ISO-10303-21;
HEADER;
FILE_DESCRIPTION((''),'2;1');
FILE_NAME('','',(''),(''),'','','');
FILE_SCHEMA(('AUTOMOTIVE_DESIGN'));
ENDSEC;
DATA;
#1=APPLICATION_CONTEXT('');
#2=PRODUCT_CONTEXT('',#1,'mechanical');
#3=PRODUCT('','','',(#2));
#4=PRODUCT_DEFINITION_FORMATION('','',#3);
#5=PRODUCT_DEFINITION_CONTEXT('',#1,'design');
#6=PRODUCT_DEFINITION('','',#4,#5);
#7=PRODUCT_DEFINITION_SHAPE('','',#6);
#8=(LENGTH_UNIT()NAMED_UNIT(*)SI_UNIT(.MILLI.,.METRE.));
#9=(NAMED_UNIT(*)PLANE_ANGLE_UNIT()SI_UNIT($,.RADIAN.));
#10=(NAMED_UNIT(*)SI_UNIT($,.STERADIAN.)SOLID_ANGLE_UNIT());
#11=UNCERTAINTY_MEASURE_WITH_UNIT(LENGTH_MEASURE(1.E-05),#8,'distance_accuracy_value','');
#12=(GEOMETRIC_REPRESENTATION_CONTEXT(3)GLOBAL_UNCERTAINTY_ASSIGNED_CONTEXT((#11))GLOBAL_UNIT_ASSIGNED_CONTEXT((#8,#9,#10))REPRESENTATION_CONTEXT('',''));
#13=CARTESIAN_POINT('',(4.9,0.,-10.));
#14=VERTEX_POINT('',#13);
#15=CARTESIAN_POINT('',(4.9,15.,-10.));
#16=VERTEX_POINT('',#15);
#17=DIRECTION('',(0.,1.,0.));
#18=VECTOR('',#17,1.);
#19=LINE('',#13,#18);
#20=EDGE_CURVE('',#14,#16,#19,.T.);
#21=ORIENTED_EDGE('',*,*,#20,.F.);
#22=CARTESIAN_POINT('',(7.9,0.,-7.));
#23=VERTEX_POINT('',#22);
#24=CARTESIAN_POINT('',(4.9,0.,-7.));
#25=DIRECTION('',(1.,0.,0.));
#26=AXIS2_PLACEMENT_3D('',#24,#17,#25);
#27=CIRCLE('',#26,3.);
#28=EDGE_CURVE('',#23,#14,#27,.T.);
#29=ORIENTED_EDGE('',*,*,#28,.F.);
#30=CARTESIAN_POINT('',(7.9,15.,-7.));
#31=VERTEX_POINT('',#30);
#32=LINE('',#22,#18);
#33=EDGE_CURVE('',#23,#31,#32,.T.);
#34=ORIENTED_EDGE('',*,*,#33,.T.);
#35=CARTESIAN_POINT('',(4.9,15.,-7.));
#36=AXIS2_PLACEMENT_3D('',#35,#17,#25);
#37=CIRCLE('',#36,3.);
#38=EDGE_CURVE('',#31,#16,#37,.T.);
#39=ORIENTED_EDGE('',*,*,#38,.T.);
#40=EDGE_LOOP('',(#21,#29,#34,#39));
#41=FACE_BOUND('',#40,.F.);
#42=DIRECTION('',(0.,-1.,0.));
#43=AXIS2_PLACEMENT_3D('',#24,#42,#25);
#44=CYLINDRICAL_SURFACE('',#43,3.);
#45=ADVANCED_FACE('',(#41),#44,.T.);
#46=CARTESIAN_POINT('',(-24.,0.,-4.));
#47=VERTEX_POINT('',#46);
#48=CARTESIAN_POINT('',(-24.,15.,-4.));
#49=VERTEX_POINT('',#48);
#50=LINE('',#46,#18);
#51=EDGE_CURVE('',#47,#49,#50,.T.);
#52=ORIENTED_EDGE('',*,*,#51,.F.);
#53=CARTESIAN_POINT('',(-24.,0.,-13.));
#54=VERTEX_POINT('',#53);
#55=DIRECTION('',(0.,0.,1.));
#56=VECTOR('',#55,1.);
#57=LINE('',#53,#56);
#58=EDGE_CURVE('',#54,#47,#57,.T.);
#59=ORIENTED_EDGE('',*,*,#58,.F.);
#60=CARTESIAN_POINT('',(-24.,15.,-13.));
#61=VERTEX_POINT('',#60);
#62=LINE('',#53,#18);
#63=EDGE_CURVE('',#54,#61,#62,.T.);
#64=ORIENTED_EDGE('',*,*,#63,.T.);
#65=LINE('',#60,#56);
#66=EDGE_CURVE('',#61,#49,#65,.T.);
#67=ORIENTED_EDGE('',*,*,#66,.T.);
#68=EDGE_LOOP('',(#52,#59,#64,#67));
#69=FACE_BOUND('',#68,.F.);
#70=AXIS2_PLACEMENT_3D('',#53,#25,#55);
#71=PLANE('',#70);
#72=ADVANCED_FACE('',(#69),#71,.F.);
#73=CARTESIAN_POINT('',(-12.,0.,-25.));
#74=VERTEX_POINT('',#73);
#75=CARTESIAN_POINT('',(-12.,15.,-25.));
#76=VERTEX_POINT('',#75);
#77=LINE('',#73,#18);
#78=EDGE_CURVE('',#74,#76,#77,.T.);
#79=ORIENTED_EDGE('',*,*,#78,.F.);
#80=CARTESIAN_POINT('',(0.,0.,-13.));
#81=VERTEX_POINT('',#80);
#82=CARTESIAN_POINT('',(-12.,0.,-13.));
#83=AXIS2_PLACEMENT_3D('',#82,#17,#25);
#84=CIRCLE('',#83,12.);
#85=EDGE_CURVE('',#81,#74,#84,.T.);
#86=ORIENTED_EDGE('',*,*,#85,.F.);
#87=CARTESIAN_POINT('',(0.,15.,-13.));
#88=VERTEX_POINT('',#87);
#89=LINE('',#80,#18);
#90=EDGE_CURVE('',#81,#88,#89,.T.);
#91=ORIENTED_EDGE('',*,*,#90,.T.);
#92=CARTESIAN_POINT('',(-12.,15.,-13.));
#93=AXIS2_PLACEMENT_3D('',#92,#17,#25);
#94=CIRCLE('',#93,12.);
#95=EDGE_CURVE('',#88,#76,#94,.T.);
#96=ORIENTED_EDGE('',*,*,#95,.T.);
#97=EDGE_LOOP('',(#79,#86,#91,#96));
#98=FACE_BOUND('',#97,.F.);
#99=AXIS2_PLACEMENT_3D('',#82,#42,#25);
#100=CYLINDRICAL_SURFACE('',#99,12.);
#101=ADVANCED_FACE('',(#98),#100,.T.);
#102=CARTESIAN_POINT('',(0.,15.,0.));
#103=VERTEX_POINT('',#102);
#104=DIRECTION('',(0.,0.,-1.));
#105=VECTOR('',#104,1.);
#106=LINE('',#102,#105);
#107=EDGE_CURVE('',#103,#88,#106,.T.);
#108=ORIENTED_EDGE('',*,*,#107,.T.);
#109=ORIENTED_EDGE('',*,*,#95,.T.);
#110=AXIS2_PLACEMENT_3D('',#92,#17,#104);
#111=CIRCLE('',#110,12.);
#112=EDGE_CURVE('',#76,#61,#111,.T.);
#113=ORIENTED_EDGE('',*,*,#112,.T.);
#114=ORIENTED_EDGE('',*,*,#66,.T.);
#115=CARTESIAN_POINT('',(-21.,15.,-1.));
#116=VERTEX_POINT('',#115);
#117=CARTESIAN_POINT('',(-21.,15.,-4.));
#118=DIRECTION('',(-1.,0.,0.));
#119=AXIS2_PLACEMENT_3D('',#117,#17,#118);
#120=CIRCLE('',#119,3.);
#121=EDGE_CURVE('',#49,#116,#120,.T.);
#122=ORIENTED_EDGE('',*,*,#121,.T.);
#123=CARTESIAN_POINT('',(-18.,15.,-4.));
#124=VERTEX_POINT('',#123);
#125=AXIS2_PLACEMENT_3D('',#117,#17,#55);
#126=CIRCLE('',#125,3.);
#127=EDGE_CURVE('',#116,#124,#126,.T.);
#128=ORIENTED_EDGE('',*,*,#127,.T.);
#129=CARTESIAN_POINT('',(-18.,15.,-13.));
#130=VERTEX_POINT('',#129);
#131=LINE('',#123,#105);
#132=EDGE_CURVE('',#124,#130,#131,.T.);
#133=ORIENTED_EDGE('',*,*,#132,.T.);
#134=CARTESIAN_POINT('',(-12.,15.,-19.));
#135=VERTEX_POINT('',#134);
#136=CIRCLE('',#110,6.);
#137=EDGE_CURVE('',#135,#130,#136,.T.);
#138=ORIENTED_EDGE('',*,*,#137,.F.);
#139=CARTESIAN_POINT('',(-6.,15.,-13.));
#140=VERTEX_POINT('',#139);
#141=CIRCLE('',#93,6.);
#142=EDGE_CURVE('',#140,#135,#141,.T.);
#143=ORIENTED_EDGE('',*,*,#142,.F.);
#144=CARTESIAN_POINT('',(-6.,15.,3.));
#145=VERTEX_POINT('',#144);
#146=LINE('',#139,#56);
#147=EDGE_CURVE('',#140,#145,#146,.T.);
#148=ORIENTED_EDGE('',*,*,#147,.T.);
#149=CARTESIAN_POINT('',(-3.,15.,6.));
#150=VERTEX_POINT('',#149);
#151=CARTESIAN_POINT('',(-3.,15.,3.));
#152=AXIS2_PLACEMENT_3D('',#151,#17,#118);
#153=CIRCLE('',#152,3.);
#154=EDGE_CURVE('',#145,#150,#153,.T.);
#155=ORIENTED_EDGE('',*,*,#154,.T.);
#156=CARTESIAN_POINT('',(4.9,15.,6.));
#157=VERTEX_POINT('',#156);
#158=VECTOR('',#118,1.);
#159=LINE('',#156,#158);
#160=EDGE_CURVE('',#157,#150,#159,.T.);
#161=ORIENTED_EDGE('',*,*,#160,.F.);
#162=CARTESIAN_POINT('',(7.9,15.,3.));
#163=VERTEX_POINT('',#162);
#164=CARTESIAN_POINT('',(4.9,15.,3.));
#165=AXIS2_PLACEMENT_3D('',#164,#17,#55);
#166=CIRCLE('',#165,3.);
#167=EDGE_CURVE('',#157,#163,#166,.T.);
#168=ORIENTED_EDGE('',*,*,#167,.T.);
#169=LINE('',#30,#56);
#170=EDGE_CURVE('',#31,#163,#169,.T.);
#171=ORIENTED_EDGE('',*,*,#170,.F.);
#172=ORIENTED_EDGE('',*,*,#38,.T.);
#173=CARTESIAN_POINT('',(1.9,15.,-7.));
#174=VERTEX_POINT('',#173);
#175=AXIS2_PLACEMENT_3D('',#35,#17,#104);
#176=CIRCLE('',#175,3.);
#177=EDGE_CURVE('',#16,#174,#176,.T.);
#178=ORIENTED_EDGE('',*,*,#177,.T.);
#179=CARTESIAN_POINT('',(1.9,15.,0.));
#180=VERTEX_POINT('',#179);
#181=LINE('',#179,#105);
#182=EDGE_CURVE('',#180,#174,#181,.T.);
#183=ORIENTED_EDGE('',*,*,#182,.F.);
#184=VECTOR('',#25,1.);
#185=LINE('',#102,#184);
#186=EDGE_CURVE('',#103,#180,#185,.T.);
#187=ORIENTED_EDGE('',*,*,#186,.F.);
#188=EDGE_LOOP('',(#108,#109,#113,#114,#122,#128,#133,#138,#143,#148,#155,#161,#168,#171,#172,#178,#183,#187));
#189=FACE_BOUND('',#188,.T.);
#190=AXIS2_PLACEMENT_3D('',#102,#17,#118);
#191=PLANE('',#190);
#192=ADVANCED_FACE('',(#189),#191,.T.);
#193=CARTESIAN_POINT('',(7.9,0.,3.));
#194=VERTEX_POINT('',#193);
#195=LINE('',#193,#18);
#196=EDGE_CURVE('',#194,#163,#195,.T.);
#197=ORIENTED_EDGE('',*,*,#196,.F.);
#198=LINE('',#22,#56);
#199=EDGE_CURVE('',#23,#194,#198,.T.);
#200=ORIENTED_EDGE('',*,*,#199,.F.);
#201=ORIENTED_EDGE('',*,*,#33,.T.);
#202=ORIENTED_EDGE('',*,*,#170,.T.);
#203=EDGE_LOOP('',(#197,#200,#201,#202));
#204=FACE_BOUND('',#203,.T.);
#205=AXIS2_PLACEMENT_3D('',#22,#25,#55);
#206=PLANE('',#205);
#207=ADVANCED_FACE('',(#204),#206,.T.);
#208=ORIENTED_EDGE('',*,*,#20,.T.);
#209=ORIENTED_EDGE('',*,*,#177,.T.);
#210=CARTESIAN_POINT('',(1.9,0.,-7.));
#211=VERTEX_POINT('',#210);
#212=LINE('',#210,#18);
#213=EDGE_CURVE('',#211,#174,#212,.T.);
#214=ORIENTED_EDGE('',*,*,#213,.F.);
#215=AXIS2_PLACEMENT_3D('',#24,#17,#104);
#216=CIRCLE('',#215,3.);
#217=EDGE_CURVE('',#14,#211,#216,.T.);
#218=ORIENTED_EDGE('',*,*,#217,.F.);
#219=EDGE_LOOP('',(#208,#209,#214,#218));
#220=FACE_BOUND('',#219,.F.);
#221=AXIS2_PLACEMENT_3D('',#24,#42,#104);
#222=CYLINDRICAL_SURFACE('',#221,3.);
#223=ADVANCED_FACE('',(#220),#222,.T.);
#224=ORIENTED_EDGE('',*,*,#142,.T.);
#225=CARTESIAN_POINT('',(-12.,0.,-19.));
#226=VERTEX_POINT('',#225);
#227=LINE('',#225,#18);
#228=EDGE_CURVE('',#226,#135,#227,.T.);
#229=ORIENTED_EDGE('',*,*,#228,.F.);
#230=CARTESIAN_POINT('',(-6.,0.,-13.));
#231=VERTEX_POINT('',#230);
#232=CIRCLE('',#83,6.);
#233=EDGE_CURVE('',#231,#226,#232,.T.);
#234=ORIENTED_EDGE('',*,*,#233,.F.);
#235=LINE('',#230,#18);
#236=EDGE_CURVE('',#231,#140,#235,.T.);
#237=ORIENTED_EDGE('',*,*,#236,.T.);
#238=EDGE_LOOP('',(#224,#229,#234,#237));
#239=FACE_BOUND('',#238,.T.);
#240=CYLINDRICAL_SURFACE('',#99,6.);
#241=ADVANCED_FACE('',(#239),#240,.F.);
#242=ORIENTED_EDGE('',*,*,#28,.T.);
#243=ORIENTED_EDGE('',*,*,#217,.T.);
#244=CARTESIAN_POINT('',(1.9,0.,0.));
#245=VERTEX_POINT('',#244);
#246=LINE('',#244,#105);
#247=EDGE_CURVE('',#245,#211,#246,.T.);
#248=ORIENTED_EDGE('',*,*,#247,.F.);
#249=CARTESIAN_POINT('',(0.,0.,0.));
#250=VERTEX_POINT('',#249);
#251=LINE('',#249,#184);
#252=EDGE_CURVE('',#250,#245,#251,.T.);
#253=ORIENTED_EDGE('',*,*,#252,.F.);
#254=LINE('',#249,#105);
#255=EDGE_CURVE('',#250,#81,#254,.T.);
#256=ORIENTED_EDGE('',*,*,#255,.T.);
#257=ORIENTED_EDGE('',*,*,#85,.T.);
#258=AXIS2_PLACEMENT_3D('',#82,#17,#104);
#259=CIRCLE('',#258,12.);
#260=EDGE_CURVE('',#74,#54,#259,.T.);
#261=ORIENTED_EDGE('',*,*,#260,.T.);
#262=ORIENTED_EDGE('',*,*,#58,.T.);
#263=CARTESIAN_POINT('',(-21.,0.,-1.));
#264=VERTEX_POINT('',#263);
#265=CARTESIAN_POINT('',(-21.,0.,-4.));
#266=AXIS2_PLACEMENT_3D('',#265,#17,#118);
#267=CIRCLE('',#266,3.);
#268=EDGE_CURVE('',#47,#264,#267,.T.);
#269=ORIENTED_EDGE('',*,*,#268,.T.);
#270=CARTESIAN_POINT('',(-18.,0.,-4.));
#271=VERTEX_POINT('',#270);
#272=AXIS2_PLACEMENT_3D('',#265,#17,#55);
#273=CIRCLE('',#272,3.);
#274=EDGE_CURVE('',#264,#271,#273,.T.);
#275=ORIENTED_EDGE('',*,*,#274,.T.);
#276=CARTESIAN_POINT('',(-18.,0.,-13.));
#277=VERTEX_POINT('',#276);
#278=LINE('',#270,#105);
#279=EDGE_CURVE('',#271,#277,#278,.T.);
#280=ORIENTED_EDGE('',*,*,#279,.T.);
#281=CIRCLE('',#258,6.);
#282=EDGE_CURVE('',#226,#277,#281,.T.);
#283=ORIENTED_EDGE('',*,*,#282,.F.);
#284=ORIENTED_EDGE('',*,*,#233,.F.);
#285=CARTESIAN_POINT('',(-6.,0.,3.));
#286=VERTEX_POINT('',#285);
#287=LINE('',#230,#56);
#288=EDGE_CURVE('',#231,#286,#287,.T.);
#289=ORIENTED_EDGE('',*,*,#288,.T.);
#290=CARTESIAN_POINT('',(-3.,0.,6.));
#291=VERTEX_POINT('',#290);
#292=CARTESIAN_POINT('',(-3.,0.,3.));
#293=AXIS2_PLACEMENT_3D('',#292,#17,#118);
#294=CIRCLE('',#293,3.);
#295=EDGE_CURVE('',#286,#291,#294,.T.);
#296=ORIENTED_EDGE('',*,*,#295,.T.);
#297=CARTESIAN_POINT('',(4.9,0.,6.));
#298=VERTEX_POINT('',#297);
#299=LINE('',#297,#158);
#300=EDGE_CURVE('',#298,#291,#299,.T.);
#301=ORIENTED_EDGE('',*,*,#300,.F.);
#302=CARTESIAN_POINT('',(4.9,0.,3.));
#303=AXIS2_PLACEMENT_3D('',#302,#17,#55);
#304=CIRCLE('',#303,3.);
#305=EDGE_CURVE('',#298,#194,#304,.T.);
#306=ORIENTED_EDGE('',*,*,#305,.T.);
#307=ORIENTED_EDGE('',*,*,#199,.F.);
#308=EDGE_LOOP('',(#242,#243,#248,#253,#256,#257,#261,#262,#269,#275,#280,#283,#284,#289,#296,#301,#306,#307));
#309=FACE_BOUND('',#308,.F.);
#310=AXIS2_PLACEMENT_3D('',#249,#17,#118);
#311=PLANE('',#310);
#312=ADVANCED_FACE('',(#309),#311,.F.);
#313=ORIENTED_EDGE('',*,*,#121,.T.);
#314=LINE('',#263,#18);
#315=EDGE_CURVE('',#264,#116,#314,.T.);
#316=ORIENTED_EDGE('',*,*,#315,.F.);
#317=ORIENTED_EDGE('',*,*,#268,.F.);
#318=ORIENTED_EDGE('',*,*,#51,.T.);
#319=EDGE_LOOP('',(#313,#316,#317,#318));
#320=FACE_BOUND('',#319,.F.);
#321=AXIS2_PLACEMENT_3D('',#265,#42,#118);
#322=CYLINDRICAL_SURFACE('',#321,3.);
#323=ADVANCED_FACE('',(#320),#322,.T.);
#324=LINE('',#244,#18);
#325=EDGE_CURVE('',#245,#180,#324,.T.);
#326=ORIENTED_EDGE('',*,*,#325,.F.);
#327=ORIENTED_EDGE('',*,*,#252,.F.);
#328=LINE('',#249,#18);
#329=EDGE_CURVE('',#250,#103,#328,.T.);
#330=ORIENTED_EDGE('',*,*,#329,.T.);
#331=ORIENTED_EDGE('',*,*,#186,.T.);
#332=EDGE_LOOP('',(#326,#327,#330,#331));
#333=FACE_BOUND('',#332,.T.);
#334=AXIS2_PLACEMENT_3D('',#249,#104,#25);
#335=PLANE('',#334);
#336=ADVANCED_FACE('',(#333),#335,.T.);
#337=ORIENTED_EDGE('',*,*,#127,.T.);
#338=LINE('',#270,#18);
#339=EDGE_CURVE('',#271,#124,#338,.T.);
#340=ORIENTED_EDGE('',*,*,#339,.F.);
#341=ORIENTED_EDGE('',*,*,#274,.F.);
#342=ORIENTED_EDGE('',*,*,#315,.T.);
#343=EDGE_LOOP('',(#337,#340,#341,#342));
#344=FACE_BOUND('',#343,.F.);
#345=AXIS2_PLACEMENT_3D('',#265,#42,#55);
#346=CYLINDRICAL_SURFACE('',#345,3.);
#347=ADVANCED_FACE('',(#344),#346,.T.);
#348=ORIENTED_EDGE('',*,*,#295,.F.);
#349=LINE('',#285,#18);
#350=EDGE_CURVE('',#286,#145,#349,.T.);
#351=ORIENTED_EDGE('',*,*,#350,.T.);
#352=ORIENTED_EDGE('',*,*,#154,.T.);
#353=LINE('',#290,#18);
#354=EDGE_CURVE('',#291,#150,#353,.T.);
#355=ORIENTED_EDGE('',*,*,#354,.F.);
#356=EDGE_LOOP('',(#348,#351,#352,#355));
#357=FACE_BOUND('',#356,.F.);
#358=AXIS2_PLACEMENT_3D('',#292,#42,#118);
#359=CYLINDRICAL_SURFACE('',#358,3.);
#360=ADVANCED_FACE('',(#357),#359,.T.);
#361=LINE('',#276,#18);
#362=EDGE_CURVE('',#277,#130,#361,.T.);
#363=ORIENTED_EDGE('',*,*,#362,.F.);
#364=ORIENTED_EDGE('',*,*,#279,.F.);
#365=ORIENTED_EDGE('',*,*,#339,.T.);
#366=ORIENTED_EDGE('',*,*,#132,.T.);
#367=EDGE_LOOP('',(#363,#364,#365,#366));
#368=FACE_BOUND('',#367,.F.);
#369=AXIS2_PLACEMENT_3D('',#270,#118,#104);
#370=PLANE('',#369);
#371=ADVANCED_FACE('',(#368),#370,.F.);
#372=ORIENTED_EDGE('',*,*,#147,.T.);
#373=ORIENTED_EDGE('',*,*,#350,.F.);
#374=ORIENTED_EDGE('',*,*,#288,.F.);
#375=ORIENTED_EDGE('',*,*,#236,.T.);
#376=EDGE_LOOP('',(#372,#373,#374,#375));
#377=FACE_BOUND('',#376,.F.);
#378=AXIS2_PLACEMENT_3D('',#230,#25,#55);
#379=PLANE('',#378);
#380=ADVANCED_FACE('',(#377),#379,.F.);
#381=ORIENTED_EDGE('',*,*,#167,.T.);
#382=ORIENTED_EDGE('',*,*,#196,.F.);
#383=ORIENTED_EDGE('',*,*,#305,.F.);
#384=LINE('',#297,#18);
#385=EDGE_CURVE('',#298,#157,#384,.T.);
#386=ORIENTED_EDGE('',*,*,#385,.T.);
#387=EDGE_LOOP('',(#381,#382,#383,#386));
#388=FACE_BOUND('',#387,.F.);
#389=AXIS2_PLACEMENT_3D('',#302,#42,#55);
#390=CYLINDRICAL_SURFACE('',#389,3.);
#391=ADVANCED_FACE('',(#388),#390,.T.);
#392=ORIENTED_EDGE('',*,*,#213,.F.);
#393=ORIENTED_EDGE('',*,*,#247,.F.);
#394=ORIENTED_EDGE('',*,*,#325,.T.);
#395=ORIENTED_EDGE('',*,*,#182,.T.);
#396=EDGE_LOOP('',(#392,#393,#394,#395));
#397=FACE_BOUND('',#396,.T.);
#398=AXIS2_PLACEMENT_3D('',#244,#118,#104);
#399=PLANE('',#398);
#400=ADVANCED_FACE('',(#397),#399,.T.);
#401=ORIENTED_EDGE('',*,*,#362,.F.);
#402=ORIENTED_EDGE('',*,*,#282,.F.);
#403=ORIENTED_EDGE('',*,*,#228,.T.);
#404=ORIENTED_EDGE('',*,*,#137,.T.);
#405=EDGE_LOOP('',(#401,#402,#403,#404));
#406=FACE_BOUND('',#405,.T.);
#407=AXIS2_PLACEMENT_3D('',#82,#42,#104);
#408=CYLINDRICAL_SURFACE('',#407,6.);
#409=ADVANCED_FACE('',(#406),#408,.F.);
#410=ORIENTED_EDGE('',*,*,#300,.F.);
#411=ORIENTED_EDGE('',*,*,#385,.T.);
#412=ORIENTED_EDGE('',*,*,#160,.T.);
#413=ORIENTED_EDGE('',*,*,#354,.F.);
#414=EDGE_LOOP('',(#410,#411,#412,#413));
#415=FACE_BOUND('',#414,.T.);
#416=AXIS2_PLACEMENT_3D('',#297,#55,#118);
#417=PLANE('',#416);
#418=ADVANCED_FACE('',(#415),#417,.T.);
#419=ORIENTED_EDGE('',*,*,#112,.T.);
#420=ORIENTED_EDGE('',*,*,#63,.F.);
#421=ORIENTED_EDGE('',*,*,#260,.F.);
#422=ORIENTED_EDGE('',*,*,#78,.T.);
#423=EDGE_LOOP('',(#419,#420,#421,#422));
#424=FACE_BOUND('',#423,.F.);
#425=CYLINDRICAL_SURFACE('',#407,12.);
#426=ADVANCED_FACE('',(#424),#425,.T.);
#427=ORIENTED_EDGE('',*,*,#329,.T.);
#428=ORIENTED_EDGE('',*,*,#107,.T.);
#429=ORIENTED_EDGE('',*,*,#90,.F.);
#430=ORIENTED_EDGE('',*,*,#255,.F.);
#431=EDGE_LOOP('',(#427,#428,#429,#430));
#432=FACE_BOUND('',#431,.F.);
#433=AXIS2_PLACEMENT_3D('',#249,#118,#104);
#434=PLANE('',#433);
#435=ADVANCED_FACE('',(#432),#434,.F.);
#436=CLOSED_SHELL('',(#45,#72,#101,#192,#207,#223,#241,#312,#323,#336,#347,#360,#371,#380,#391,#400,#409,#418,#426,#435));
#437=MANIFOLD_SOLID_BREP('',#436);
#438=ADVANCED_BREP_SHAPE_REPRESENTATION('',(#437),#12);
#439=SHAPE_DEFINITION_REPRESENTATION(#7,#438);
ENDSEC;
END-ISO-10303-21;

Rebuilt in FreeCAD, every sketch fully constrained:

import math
import FreeCAD as App
import Part
import Sketcher
from FreeCAD import Vector

doc = App.newDocument("Part")
body = doc.addObject("PartDesign::Body", "Body")

# Sketch on XZ plane
sketch1 = doc.addObject("Sketcher::SketchObject", "Sketch")
body.addObject(sketch1)
sketch1.AttachmentSupport = (doc.XZ_Plane, [""])
sketch1.MapMode = "FlatFace"
sketch1.addGeometry(Part.LineSegment(Vector(1.9, 0, 0), Vector(0, 0, 0)), False)
sketch1.addGeometry(Part.LineSegment(Vector(0, 0, 0), Vector(0, -13, 0)), False)
sketch1.addGeometry(Part.ArcOfCircle(Part.Circle(Vector(-12, -13, 0), Vector(0, 0, 1), 12), math.radians(180), math.radians(360)), False)
sketch1.addGeometry(Part.LineSegment(Vector(-24, -13, 0), Vector(-24, -4, 0)), False)
sketch1.addGeometry(Part.ArcOfCircle(Part.Circle(Vector(-21, -4, 0), Vector(0, 0, 1), 3), math.radians(0), math.radians(180)), False)
sketch1.addGeometry(Part.LineSegment(Vector(-18, -4, 0), Vector(-18, -13, 0)), False)
sketch1.addGeometry(Part.ArcOfCircle(Part.Circle(Vector(-12, -13, 0), Vector(0, 0, 1), 6), math.radians(180), math.radians(360)), False)
sketch1.addGeometry(Part.LineSegment(Vector(-6, -13, 0), Vector(-6, 3, 0)), False)
sketch1.addGeometry(Part.ArcOfCircle(Part.Circle(Vector(-3, 3, 0), Vector(0, 0, 1), 3), math.radians(90), math.radians(180)), False)
sketch1.addGeometry(Part.LineSegment(Vector(-3, 6, 0), Vector(4.9, 6, 0)), False)
sketch1.addGeometry(Part.ArcOfCircle(Part.Circle(Vector(4.9, 3, 0), Vector(0, 0, 1), 3), math.radians(0), math.radians(90)), False)
sketch1.addGeometry(Part.LineSegment(Vector(7.9, 3, 0), Vector(7.9, -7, 0)), False)
sketch1.addGeometry(Part.ArcOfCircle(Part.Circle(Vector(4.9, -7, 0), Vector(0, 0, 1), 3), math.radians(180), math.radians(360)), False)
sketch1.addGeometry(Part.LineSegment(Vector(1.9, -7, 0), Vector(1.9, 0, 0)), False)
sketch1.addConstraint(Sketcher.Constraint("Coincident", 0, 2, 1, 1))
sketch1.addConstraint(Sketcher.Constraint("Tangent", 1, 2, 2, 2))
sketch1.addConstraint(Sketcher.Constraint("Tangent", 2, 1, 3, 1))
sketch1.addConstraint(Sketcher.Constraint("Tangent", 3, 2, 4, 2))
sketch1.addConstraint(Sketcher.Constraint("Tangent", 4, 1, 5, 1))
sketch1.addConstraint(Sketcher.Constraint("Tangent", 5, 2, 6, 1))
sketch1.addConstraint(Sketcher.Constraint("Tangent", 6, 2, 7, 1))
sketch1.addConstraint(Sketcher.Constraint("Tangent", 7, 2, 8, 2))
sketch1.addConstraint(Sketcher.Constraint("Tangent", 8, 1, 9, 1))
sketch1.addConstraint(Sketcher.Constraint("Tangent", 9, 2, 10, 2))
sketch1.addConstraint(Sketcher.Constraint("Tangent", 10, 1, 11, 1))
sketch1.addConstraint(Sketcher.Constraint("Tangent", 11, 2, 12, 2))
sketch1.addConstraint(Sketcher.Constraint("Tangent", 12, 1, 13, 1))
sketch1.addConstraint(Sketcher.Constraint("Coincident", 13, 2, 0, 1))
sketch1.addConstraint(Sketcher.Constraint("Horizontal", 0))
sketch1.addConstraint(Sketcher.Constraint("Vertical", 1))
sketch1.addConstraint(Sketcher.Constraint("Vertical", 3))
sketch1.addConstraint(Sketcher.Constraint("Vertical", 5))
sketch1.addConstraint(Sketcher.Constraint("Vertical", 7))
sketch1.addConstraint(Sketcher.Constraint("Horizontal", 9))
sketch1.addConstraint(Sketcher.Constraint("Vertical", 11))
sketch1.addConstraint(Sketcher.Constraint("Vertical", 13))
sketch1.addConstraint(Sketcher.Constraint("Coincident", 0, 2, -1, 1))
sketch1.addConstraint(Sketcher.Constraint("Coincident", 6, 3, 2, 3))
sketch1.addConstraint(Sketcher.Constraint("Equal", 4, 8))
sketch1.addConstraint(Sketcher.Constraint("Equal", 8, 10))
sketch1.addConstraint(Sketcher.Constraint("Equal", 10, 12))
sketch1.addConstraint(Sketcher.Constraint("Radius", 2, 12.0))
sketch1.addConstraint(Sketcher.Constraint("Radius", 4, 3.0))
sketch1.addConstraint(Sketcher.Constraint("DistanceY", 7, 1, 7, 2, 16.0))
sketch1.addConstraint(Sketcher.Constraint("DistanceY", 11, 2, 11, 1, 10.0))
sketch1.addConstraint(Sketcher.Constraint("DistanceX", 0, 2, 0, 1, 1.9))
sketch1.addConstraint(Sketcher.Constraint("DistanceY", -1, 1, 8, 3, 3.0))
sketch1.addConstraint(Sketcher.Constraint("DistanceY", 12, 3, 4, 3, 3.0))
pad1 = doc.addObject("PartDesign::Pad", "Pad")
body.addObject(pad1)
pad1.Profile = sketch1
pad1.Length = 15
pad1.Reversed = True

doc.recompute()
